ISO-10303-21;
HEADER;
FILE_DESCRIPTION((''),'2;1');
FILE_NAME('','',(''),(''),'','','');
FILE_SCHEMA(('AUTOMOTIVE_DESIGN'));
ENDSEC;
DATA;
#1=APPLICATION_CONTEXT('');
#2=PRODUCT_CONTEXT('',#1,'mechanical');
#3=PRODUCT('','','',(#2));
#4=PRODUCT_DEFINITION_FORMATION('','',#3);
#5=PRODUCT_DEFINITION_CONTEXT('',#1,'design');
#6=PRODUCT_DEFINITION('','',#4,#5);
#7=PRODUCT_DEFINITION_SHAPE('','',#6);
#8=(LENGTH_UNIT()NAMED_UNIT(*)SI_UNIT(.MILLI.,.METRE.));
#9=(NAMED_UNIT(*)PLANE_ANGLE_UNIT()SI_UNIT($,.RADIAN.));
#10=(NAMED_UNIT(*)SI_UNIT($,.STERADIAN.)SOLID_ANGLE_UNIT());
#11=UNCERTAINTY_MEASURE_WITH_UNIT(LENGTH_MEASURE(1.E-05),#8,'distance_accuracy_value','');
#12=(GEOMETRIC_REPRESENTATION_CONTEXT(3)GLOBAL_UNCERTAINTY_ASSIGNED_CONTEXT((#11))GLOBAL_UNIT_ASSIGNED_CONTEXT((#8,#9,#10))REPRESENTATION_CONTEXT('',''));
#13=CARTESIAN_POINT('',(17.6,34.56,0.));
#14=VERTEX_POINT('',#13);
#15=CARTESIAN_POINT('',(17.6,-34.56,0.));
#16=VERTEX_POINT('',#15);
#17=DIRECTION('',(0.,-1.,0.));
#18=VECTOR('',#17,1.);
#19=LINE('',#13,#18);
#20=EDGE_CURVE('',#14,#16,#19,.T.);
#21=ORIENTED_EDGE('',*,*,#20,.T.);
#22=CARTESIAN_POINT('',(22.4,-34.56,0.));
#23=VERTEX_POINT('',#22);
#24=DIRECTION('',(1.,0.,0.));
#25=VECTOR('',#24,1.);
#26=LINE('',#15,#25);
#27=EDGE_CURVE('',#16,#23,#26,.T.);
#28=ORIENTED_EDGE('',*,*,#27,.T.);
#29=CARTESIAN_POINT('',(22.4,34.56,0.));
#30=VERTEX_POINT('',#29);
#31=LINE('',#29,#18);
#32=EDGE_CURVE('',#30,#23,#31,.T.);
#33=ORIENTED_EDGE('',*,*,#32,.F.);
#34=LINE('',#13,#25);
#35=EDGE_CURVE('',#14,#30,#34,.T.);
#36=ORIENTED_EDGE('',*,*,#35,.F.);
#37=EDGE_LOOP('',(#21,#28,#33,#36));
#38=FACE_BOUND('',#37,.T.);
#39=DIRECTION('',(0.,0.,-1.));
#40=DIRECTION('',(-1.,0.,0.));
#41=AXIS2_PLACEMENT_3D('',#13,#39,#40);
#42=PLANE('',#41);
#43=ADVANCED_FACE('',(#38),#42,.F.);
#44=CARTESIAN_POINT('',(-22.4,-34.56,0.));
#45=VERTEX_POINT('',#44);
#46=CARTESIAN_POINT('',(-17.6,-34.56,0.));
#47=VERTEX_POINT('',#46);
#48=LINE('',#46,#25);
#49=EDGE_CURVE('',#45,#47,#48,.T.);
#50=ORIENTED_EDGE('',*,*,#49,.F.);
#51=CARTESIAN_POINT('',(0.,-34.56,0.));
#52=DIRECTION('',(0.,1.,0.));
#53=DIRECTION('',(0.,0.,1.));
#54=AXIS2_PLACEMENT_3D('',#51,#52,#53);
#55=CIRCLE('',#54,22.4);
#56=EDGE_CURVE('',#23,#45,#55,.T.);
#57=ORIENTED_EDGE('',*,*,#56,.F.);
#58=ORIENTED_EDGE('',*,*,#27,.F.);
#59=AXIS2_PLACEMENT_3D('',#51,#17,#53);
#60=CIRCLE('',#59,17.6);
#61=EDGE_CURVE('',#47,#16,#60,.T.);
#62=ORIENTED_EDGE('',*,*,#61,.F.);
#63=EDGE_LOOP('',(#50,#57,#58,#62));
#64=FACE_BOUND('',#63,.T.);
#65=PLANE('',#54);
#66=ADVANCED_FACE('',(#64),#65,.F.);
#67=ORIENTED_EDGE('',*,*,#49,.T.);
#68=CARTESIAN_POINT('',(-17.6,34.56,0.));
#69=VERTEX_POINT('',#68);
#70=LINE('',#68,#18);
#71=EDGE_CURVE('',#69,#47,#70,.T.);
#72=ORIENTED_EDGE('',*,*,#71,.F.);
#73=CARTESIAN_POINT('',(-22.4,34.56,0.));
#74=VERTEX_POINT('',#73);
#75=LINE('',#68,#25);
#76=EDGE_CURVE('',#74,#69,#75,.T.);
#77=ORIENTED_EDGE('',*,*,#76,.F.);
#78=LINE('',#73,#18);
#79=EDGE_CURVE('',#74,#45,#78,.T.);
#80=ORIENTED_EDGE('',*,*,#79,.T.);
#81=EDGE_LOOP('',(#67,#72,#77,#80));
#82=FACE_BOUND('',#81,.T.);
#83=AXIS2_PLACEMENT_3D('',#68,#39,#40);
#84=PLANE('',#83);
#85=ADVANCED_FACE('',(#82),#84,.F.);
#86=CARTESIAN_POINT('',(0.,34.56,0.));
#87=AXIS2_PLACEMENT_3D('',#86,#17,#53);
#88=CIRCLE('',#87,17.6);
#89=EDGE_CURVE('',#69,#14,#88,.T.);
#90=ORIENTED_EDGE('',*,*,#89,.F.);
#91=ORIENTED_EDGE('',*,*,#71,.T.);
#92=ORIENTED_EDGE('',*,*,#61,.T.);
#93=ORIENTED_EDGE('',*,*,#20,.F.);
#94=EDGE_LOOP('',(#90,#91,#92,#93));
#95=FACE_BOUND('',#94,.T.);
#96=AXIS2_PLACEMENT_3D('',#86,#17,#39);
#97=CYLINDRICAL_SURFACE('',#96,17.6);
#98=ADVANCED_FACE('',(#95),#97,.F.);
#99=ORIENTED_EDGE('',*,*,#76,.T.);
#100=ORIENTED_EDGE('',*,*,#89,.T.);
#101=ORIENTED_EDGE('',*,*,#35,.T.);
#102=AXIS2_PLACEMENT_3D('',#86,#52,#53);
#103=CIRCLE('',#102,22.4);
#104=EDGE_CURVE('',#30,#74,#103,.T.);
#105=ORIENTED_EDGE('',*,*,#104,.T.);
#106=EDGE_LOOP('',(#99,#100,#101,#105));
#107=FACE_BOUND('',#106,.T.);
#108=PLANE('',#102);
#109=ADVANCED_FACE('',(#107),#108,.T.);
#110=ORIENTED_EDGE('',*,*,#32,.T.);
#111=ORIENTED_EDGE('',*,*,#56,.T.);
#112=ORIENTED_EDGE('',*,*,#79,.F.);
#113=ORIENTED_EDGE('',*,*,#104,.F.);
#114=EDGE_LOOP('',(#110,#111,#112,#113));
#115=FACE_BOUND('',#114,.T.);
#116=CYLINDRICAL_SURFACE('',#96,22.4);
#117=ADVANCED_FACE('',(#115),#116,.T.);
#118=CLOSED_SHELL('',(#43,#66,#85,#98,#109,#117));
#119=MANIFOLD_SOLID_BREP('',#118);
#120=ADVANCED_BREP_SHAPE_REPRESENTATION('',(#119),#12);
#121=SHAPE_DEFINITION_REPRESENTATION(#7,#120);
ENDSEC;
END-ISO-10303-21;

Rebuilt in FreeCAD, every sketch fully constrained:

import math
import FreeCAD as App
import Part
import Sketcher
from FreeCAD import Vector

doc = App.newDocument("Part")
params = doc.addObject("Spreadsheet::Sheet", "Params")
for row, (alias, value) in enumerate([
    ("sketch1_radius", "22.4 mm"),
    ("sketch1_radius2", "17.6 mm"),
    ("pad1_length", "69.12 mm"),
], start=1):
    params.set(f"A{row}", alias)
    params.set(f"B{row}", "=" + value)
    params.setAlias(f"B{row}", alias)

body = doc.addObject("PartDesign::Body", "Body")

# Sketch on XZ plane
sketch1 = body.newObject("Sketcher::SketchObject", "Sketch")
sketch1.AttachmentSupport = (doc.getObject("XZ_Plane"), [""])
sketch1.MapMode = "FlatFace"
sketch1.addGeometry(Part.LineSegment(Vector(17.6, 0, 0), Vector(22.4, 0, 0)), False)
sketch1.addGeometry(Part.ArcOfCircle(Part.Circle(Vector(0, 0, 0), Vector(0, 0, 1), 22.4), math.radians(180), math.radians(360)), False)
sketch1.addGeometry(Part.LineSegment(Vector(-22.4, 0, 0), Vector(-17.6, 0, 0)), False)
sketch1.addGeometry(Part.ArcOfCircle(Part.Circle(Vector(0, 0, 0), Vector(0, 0, 1), 17.6), math.radians(180), math.radians(360)), False)
sketch1.addConstraint(Sketcher.Constraint("Coincident", 0, 2, 1, 2))
sketch1.addConstraint(Sketcher.Constraint("Coincident", 1, 1, 2, 1))
sketch1.addConstraint(Sketcher.Constraint("Coincident", 2, 2, 3, 1))
sketch1.addConstraint(Sketcher.Constraint("Coincident", 3, 2, 0, 1))
sketch1.addConstraint(Sketcher.Constraint("Horizontal", 0))
sketch1.addConstraint(Sketcher.Constraint("Horizontal", 2))
sketch1.addConstraint(Sketcher.Constraint("Coincident", 1, 3, -1, 1))
sketch1.addConstraint(Sketcher.Constraint("Coincident", 3, 3, -1, 1))
sketch1.addConstraint(Sketcher.Constraint("PointOnObject", 0, 2, -1))
sketch1.addConstraint(Sketcher.Constraint("PointOnObject", 1, 1, -1))
sketch1.addConstraint(Sketcher.Constraint("Radius", 1, 22.4))
sketch1.addConstraint(Sketcher.Constraint("Radius", 3, 17.6))
sketch1.setExpression("Constraints[10]", "Params.sketch1_radius")
sketch1.setExpression("Constraints[11]", "Params.sketch1_radius2")
pad1 = body.newObject("PartDesign::Pad", "Pad")
pad1.Profile = sketch1
pad1.setExpression("Length", "Params.pad1_length")
pad1.Midplane = True

doc.recompute()
